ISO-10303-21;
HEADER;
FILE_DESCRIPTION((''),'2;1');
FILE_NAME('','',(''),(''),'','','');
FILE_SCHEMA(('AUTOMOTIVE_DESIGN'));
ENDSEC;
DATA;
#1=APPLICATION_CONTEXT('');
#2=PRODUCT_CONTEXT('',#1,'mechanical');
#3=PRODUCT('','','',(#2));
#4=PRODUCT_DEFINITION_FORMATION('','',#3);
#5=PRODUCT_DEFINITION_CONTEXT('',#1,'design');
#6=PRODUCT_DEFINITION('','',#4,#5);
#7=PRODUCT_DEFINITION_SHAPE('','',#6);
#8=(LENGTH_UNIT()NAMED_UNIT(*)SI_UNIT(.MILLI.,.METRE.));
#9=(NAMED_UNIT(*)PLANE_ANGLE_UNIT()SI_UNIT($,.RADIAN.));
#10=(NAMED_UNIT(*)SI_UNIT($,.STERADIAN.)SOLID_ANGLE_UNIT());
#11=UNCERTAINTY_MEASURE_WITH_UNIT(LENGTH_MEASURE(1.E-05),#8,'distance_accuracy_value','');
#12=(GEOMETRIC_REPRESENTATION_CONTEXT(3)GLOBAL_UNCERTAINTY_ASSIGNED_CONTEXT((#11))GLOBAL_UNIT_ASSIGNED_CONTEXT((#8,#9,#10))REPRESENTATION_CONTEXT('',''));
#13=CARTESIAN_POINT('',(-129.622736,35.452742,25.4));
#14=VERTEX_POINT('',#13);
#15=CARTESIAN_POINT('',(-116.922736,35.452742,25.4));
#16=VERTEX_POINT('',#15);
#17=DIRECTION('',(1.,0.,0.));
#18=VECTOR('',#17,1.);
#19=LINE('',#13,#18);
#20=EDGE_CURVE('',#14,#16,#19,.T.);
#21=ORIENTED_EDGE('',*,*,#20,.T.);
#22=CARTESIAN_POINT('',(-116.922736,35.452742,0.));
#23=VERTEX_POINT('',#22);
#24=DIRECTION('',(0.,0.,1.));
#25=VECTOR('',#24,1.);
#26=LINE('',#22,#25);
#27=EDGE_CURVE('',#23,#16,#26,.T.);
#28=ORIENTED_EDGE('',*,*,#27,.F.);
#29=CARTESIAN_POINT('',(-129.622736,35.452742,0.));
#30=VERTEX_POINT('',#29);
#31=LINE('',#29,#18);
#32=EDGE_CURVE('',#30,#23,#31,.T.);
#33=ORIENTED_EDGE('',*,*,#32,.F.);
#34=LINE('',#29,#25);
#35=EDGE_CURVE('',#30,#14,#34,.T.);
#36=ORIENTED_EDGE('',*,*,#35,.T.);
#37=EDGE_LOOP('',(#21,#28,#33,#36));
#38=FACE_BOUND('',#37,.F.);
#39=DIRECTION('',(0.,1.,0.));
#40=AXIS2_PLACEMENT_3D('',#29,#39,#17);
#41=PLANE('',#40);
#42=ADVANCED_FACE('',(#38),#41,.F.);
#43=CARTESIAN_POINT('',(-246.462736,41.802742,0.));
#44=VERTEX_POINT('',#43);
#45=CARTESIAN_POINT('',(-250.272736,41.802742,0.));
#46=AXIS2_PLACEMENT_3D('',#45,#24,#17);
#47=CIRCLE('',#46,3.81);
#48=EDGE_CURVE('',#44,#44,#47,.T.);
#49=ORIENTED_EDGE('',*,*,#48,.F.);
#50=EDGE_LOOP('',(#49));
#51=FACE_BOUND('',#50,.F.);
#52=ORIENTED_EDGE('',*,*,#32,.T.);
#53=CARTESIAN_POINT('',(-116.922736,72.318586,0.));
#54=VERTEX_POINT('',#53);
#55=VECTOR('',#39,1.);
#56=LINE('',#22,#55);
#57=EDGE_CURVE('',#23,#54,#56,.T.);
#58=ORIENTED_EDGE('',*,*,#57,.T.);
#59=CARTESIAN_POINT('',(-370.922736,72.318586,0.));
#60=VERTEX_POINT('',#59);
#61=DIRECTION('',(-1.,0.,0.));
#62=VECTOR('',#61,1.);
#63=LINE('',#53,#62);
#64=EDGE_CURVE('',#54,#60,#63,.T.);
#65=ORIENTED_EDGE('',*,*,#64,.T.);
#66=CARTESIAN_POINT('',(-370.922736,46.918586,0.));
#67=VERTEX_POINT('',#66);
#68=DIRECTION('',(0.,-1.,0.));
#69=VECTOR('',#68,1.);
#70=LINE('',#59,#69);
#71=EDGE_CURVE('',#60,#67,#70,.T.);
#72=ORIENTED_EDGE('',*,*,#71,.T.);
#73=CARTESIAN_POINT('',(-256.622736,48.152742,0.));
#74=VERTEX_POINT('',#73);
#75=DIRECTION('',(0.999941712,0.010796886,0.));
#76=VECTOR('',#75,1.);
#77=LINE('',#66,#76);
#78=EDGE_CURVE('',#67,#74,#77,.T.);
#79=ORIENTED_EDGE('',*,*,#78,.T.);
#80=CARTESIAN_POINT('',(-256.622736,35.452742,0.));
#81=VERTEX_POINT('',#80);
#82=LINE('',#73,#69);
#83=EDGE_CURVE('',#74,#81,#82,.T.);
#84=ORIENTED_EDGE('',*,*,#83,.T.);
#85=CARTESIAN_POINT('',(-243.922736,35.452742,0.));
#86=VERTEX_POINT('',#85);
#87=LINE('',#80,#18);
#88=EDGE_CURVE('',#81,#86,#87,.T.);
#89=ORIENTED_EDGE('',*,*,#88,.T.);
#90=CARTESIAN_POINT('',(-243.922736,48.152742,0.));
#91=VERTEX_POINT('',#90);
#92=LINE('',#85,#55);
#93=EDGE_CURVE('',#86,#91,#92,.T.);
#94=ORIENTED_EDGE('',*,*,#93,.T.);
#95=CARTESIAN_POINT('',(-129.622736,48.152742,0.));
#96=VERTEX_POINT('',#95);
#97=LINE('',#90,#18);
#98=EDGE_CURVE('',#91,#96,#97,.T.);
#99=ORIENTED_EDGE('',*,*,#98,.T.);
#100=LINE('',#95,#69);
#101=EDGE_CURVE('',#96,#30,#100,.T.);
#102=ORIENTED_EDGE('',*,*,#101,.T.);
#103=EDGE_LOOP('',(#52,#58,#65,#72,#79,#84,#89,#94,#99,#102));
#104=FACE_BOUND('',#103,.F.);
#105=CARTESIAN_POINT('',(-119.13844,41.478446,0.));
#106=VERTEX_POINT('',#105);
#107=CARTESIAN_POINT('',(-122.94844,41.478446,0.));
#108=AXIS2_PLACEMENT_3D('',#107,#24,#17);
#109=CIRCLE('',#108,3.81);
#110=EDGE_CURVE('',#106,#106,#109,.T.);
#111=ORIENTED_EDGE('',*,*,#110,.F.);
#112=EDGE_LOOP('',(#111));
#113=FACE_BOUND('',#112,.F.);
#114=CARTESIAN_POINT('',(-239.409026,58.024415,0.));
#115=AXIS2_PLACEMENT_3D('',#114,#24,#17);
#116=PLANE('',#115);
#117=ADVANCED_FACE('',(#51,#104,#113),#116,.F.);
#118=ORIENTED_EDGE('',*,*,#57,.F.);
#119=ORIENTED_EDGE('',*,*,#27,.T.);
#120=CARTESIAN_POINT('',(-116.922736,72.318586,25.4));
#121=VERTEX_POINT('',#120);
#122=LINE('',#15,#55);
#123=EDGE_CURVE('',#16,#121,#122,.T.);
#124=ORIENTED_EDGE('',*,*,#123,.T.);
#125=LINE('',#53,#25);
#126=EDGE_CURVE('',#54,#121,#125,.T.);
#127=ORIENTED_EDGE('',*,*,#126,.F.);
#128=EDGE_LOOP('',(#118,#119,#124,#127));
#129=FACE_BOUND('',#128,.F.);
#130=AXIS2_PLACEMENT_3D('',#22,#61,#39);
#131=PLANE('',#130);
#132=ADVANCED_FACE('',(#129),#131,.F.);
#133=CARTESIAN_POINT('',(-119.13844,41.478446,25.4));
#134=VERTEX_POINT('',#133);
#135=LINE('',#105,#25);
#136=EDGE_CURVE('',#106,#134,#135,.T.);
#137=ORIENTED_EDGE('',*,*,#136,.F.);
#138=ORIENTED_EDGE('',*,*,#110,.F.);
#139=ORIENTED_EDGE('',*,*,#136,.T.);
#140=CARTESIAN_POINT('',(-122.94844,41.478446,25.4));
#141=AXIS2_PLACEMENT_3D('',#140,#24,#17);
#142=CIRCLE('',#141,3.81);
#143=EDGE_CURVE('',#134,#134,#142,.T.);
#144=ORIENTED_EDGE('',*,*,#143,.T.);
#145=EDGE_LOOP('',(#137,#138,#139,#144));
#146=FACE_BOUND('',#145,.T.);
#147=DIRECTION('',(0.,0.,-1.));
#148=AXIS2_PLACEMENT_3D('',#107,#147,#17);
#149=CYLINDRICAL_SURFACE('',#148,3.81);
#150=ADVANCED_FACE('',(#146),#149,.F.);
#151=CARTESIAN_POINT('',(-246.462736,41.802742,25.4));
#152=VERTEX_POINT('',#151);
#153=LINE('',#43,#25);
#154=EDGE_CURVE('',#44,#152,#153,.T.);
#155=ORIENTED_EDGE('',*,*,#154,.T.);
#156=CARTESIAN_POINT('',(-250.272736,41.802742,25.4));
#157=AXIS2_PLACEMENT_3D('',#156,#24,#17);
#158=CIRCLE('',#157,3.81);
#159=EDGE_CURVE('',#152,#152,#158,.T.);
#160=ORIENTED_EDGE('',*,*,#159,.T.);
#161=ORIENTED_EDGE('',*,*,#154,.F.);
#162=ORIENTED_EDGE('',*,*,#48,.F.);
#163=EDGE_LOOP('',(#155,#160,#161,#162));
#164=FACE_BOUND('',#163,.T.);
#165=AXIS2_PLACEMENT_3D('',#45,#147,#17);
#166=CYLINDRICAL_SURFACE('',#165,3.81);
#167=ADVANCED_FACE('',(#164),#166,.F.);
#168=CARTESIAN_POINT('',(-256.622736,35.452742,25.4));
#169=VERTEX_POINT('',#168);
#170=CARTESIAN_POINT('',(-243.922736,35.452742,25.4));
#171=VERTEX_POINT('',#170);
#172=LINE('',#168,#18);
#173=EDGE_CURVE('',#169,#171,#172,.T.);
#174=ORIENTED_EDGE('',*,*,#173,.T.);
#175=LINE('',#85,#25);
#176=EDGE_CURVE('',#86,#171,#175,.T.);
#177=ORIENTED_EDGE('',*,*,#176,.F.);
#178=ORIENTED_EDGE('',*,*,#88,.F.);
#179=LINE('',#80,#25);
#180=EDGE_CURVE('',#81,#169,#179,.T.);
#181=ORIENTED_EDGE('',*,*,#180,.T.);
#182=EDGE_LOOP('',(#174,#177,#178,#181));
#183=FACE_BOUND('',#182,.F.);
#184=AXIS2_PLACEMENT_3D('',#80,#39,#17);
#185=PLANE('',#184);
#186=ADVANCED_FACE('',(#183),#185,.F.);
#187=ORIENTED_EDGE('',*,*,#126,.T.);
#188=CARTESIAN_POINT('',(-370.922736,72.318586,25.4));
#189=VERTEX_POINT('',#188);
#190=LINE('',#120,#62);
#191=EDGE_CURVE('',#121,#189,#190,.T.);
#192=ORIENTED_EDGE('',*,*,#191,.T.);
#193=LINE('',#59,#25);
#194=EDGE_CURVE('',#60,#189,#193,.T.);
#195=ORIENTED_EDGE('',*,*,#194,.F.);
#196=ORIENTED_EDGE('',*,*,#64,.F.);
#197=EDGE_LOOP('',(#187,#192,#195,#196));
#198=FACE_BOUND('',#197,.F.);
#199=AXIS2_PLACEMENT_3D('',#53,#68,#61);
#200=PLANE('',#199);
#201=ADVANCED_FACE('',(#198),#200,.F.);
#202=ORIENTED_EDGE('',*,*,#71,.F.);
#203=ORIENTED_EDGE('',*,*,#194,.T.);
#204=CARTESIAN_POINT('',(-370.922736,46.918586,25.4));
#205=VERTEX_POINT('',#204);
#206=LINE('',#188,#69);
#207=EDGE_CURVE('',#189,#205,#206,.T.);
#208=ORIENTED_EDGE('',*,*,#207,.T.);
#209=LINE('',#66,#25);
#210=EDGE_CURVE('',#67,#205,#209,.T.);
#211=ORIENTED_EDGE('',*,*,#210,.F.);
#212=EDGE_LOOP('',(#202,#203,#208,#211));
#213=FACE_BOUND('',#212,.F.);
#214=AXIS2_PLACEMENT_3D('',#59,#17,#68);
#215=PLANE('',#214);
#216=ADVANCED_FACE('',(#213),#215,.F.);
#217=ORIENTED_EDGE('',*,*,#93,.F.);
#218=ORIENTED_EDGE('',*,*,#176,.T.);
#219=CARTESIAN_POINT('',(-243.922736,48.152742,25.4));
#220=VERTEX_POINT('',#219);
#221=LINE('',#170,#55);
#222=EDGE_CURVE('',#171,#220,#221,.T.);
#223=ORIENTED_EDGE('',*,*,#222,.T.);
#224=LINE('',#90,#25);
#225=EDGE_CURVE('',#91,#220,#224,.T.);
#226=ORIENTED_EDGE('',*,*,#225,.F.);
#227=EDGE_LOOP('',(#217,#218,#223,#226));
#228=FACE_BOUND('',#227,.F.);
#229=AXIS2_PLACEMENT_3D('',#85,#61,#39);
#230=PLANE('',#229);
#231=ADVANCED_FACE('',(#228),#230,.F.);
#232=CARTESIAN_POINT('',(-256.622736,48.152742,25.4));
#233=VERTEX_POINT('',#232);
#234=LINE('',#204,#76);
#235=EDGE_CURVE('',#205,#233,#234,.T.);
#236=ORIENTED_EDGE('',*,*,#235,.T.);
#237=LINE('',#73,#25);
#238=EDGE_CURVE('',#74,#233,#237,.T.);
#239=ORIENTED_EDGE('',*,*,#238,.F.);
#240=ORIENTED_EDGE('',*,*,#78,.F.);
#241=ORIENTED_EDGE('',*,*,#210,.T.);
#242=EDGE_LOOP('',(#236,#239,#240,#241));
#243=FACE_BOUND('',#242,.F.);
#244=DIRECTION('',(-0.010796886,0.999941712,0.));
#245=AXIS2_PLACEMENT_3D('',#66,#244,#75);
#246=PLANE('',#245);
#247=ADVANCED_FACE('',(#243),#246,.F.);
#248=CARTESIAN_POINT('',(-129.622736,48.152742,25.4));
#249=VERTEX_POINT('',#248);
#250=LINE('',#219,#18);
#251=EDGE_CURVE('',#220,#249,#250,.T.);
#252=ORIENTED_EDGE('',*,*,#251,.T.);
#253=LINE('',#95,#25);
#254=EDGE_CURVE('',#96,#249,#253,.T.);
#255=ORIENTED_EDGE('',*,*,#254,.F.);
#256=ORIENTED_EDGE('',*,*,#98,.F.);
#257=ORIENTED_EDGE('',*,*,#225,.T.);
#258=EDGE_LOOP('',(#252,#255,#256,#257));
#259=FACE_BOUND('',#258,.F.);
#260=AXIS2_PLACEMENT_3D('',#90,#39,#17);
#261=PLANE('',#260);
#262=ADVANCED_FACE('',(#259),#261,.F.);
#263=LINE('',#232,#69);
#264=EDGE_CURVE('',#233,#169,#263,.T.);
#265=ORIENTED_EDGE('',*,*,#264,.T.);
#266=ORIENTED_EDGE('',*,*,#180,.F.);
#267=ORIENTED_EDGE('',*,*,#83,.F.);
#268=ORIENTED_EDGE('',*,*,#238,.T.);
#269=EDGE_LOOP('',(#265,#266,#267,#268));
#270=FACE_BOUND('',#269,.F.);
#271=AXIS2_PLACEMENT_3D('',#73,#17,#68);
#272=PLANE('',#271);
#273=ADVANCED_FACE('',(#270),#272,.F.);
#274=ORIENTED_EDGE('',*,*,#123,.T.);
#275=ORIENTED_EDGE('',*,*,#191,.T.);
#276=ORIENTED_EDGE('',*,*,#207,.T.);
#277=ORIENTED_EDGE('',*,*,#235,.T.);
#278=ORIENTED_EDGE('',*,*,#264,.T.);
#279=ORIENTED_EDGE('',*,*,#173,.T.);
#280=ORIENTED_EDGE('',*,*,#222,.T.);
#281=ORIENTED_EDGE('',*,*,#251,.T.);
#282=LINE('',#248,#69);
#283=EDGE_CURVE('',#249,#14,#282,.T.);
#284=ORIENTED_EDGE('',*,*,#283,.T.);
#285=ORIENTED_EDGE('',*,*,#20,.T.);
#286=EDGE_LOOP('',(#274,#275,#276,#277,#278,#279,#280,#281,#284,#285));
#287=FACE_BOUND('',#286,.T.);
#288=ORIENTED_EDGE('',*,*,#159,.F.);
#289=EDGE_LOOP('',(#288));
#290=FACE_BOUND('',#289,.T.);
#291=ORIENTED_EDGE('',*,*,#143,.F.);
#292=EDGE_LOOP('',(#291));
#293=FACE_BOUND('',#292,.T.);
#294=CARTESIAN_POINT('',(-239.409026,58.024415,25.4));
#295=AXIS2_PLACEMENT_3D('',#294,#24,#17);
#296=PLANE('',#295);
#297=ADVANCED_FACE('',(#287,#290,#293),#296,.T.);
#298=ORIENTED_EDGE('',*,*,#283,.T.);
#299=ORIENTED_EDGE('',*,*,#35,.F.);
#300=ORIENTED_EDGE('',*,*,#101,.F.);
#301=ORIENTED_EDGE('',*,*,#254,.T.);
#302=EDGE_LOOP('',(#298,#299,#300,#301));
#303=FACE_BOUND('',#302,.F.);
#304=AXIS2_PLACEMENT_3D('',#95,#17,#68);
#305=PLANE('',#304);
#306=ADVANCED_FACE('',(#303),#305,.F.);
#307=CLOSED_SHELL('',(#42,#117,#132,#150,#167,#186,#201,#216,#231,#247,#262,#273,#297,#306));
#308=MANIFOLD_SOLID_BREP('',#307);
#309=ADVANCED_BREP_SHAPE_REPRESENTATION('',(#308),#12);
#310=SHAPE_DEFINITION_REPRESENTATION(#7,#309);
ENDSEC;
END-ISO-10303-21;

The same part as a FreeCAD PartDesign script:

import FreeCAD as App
import Part
import Sketcher
from FreeCAD import Vector
Q = App.Units.Quantity

doc = App.newDocument("Part")
body = doc.addObject("PartDesign::Body", "Body")

sketch1 = doc.addObject("Sketcher::SketchObject", "Sketch")
body.addObject(sketch1)
sketch1.AttachmentSupport = (doc.XY_Plane, [""])
sketch1.MapMode = "FlatFace"
sketch1.addGeometry(Part.LineSegment(Vector(-116.922736, 72.318586, 0), Vector(-370.922736, 72.318586, 0)), False)
sketch1.addGeometry(Part.LineSegment(Vector(-370.922736, 72.318586, 0), Vector(-370.922736, 46.918586, 0)), False)
sketch1.addGeometry(Part.LineSegment(Vector(-370.922736, 46.918586, 0), Vector(-256.622736, 48.152742, 0)), False)
sketch1.addGeometry(Part.LineSegment(Vector(-256.622736, 48.152742, 0), Vector(-256.622736, 35.452742, 0)), False)
sketch1.addGeometry(Part.LineSegment(Vector(-256.622736, 35.452742, 0), Vector(-243.922736, 35.452742, 0)), False)
sketch1.addGeometry(Part.LineSegment(Vector(-243.922736, 35.452742, 0), Vector(-243.922736, 48.152742, 0)), False)
sketch1.addGeometry(Part.LineSegment(Vector(-243.922736, 48.152742, 0), Vector(-129.622736, 48.152742, 0)), False)
sketch1.addGeometry(Part.LineSegment(Vector(-129.622736, 48.152742, 0), Vector(-129.622736, 35.452742, 0)), False)
sketch1.addGeometry(Part.LineSegment(Vector(-129.622736, 35.452742, 0), Vector(-116.922736, 35.452742, 0)), False)
sketch1.addGeometry(Part.LineSegment(Vector(-116.922736, 35.452742, 0), Vector(-116.922736, 72.318586, 0)), False)
sketch1.addGeometry(Part.Circle(Vector(-122.94844, 41.478446, 0), Vector(0, 0, 1), 3.81), False)
sketch1.addGeometry(Part.Circle(Vector(-250.272736, 41.802742, 0), Vector(0, 0, 1), 3.81), False)
sketch1.addConstraint(Sketcher.Constraint("Coincident", 0, 2, 1, 1))
sketch1.addConstraint(Sketcher.Constraint("Coincident", 1, 2, 2, 1))
sketch1.addConstraint(Sketcher.Constraint("Coincident", 2, 2, 3, 1))
sketch1.addConstraint(Sketcher.Constraint("Coincident", 3, 2, 4, 1))
sketch1.addConstraint(Sketcher.Constraint("Coincident", 4, 2, 5, 1))
sketch1.addConstraint(Sketcher.Constraint("Coincident", 5, 2, 6, 1))
sketch1.addConstraint(Sketcher.Constraint("Coincident", 6, 2, 7, 1))
sketch1.addConstraint(Sketcher.Constraint("Coincident", 7, 2, 8, 1))
sketch1.addConstraint(Sketcher.Constraint("Coincident", 8, 2, 9, 1))
sketch1.addConstraint(Sketcher.Constraint("Coincident", 9, 2, 0, 1))
sketch1.addConstraint(Sketcher.Constraint("Horizontal", 0))
sketch1.addConstraint(Sketcher.Constraint("Vertical", 1))
sketch1.addConstraint(Sketcher.Constraint("Vertical", 3))
sketch1.addConstraint(Sketcher.Constraint("Horizontal", 4))
sketch1.addConstraint(Sketcher.Constraint("Vertical", 5))
sketch1.addConstraint(Sketcher.Constraint("Horizontal", 6))
sketch1.addConstraint(Sketcher.Constraint("Vertical", 7))
sketch1.addConstraint(Sketcher.Constraint("Horizontal", 8))
sketch1.addConstraint(Sketcher.Constraint("Vertical", 9))
sketch1.addConstraint(Sketcher.Constraint("Equal", 10, 11))
sketch1.addConstraint(Sketcher.Constraint("Horizontal", 2, 2, 5, 2))
sketch1.addConstraint(Sketcher.Constraint("Horizontal", 4, 2, 7, 2))
sketch1.addConstraint(Sketcher.Constraint("Equal", 4, 8))
sketch1.addConstraint(Sketcher.Constraint("Equal", 8, 3))
sketch1.addConstraint(Sketcher.Constraint("Diameter", 10, Q("0.3 in")))
sketch1.addConstraint(Sketcher.Constraint("DistanceX", 0, 2, 0, 1, Q("10 in")))
sketch1.addConstraint(Sketcher.Constraint("DistanceY", 1, 2, 1, 1, Q("1 in")))
sketch1.addConstraint(Sketcher.Constraint("DistanceX", 4, 1, 4, 2, Q("0.5 in")))
sketch1.addConstraint(Sketcher.Constraint("DistanceX", 6, 1, 6, 2, Q("4.5 in")))
sketch1.addConstraint(Sketcher.Constraint("DistanceX", 0, 2, 11, 3, Q("4.75 in")))
sketch1.addConstraint(Sketcher.Constraint("DistanceY", 11, 3, 2, 2, Q("0.25 in")))
sketch1.addConstraint(Sketcher.Constraint("DistanceY", 9, 1, 9, 2, 36.865844))
sketch1.addConstraint(Sketcher.Constraint("DistanceX", 10, 3, -1, 1, 122.94844))
sketch1.addConstraint(Sketcher.Constraint("DistanceY", 10, 3, 0, 2, 30.84014))
sketch1.addConstraint(Sketcher.Constraint("DistanceY", -1, 1, 10, 3, 41.478446))
sketch1.addConstraint(Sketcher.Constraint("DistanceX", 11, 3, -1, 1, 250.272736))
pad1 = doc.addObject("PartDesign::Pad", "Pad")
body.addObject(pad1)
pad1.Profile = sketch1
pad1.Length = Q("1 in")

doc.recompute()
